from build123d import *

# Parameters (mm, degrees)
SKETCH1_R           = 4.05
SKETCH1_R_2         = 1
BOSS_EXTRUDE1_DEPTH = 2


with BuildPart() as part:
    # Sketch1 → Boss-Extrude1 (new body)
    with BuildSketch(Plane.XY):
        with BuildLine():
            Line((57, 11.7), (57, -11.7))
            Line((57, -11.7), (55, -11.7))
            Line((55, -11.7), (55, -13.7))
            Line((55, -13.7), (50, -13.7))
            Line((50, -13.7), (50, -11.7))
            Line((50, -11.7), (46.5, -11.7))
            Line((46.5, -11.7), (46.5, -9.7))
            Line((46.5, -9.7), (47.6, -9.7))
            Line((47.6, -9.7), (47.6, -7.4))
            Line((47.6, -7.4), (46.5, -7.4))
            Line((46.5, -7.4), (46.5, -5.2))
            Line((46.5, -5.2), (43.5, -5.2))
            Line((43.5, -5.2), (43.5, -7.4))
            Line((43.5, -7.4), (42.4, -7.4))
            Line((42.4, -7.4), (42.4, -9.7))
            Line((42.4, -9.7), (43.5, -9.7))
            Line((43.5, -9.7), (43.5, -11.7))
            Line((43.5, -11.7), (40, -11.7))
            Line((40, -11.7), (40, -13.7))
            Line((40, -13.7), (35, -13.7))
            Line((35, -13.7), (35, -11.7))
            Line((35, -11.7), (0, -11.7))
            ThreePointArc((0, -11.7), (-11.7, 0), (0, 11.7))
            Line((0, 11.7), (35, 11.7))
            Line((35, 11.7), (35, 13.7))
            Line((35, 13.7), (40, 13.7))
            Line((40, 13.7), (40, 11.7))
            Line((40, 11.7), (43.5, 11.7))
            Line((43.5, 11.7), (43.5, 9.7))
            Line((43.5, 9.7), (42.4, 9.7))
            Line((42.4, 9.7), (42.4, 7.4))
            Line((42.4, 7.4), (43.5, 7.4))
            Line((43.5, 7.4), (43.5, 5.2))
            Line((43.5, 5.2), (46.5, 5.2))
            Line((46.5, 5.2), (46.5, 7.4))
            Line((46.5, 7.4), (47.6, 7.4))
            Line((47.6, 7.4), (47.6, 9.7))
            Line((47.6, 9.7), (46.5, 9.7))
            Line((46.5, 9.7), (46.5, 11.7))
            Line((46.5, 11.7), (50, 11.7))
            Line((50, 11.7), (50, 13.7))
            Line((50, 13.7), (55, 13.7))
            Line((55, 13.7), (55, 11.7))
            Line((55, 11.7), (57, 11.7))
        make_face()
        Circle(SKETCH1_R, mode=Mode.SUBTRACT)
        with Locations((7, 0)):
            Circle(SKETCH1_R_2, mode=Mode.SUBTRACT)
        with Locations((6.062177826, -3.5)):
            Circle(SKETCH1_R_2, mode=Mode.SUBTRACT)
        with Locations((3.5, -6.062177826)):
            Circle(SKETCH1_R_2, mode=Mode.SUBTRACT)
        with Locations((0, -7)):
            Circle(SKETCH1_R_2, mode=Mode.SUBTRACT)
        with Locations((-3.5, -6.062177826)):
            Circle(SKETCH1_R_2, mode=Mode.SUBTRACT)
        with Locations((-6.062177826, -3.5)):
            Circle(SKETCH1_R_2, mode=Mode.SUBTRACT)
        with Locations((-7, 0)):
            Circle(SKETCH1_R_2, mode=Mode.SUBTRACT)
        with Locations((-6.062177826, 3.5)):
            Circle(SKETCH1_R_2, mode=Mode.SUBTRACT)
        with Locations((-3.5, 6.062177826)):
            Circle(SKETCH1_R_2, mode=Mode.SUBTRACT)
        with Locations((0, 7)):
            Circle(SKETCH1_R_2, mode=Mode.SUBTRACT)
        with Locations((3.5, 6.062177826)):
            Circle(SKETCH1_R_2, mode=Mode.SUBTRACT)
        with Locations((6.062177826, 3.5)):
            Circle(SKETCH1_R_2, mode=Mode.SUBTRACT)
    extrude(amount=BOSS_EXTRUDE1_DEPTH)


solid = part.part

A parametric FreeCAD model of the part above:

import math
import FreeCAD as App
import Part
import Sketcher

V = App.Vector
Q = App.Units.Quantity

doc = App.newDocument("Part")
body = doc.addObject("PartDesign::Body", "Body")

sketch1 = body.newObject("Sketcher::SketchObject", "Sketch")
sketch1.AttachmentSupport = (doc.getObject("XY_Plane"), [""])
sketch1.MapMode = "FlatFace"
sketch1.addGeometry(Part.LineSegment(V(57, -11.7, 0), V(57, 11.7, 0)), False)
sketch1.addGeometry(Part.LineSegment(V(57, 11.7, 0), V(55, 11.7, 0)), False)
sketch1.addGeometry(Part.LineSegment(V(55, 11.7, 0), V(55, 13.7, 0)), False)
sketch1.addGeometry(Part.LineSegment(V(55, 13.7, 0), V(50, 13.7, 0)), False)
sketch1.addGeometry(Part.LineSegment(V(50, 13.7, 0), V(50, 11.7, 0)), False)
sketch1.addGeometry(Part.LineSegment(V(50, 11.7, 0), V(46.5, 11.7, 0)), False)
sketch1.addGeometry(Part.LineSegment(V(46.5, 11.7, 0), V(46.5, 9.7, 0)), False)
sketch1.addGeometry(Part.LineSegment(V(46.5, 9.7, 0), V(47.6, 9.7, 0)), False)
sketch1.addGeometry(Part.LineSegment(V(47.6, 9.7, 0), V(47.6, 7.4, 0)), False)
sketch1.addGeometry(Part.LineSegment(V(47.6, 7.4, 0), V(46.5, 7.4, 0)), False)
sketch1.addGeometry(Part.LineSegment(V(46.5, 7.4, 0), V(46.5, 5.2, 0)), False)
sketch1.addGeometry(Part.LineSegment(V(46.5, 5.2, 0), V(43.5, 5.2, 0)), False)
sketch1.addGeometry(Part.LineSegment(V(43.5, 5.2, 0), V(43.5, 7.4, 0)), False)
sketch1.addGeometry(Part.LineSegment(V(43.5, 7.4, 0), V(42.4, 7.4, 0)), False)
sketch1.addGeometry(Part.LineSegment(V(42.4, 7.4, 0), V(42.4, 9.7, 0)), False)
sketch1.addGeometry(Part.LineSegment(V(42.4, 9.7, 0), V(43.5, 9.7, 0)), False)
sketch1.addGeometry(Part.LineSegment(V(43.5, 9.7, 0), V(43.5, 11.7, 0)), False)
sketch1.addGeometry(Part.LineSegment(V(43.5, 11.7, 0), V(40, 11.7, 0)), False)
sketch1.addGeometry(Part.LineSegment(V(40, 11.7, 0), V(40, 13.7, 0)), False)
sketch1.addGeometry(Part.LineSegment(V(40, 13.7, 0), V(35, 13.7, 0)), False)
sketch1.addGeometry(Part.LineSegment(V(35, 13.7, 0), V(35, 11.7, 0)), False)
sketch1.addGeometry(Part.LineSegment(V(35, 11.7, 0), V(0, 11.7, 0)), False)
sketch1.addGeometry(Part.ArcOfCircle(Part.Circle(V(0, 0, 0), V(0, 0, 1), 11.7), math.radians(90), math.radians(270)), False)
sketch1.addGeometry(Part.LineSegment(V(0, -11.7, 0), V(35, -11.7, 0)), False)
sketch1.addGeometry(Part.LineSegment(V(35, -11.7, 0), V(35, -13.7, 0)), False)
sketch1.addGeometry(Part.LineSegment(V(35, -13.7, 0), V(40, -13.7, 0)), False)
sketch1.addGeometry(Part.LineSegment(V(40, -13.7, 0), V(40, -11.7, 0)), False)
sketch1.addGeometry(Part.LineSegment(V(40, -11.7, 0), V(43.5, -11.7, 0)), False)
sketch1.addGeometry(Part.LineSegment(V(43.5, -11.7, 0), V(43.5, -9.7, 0)), False)
sketch1.addGeometry(Part.LineSegment(V(43.5, -9.7, 0), V(42.4, -9.7, 0)), False)
sketch1.addGeometry(Part.LineSegment(V(42.4, -9.7, 0), V(42.4, -7.4, 0)), False)
sketch1.addGeometry(Part.LineSegment(V(42.4, -7.4, 0), V(43.5, -7.4, 0)), False)
sketch1.addGeometry(Part.LineSegment(V(43.5, -7.4, 0), V(43.5, -5.2, 0)), False)
sketch1.addGeometry(Part.LineSegment(V(43.5, -5.2, 0), V(46.5, -5.2, 0)), False)
sketch1.addGeometry(Part.LineSegment(V(46.5, -5.2, 0), V(46.5, -7.4, 0)), False)
sketch1.addGeometry(Part.LineSegment(V(46.5, -7.4, 0), V(47.6, -7.4, 0)), False)
sketch1.addGeometry(Part.LineSegment(V(47.6, -7.4, 0), V(47.6, -9.7, 0)), False)
sketch1.addGeometry(Part.LineSegment(V(47.6, -9.7, 0), V(46.5, -9.7, 0)), False)
sketch1.addGeometry(Part.LineSegment(V(46.5, -9.7, 0), V(46.5, -11.7, 0)), False)
sketch1.addGeometry(Part.LineSegment(V(46.5, -11.7, 0), V(50, -11.7, 0)), False)
sketch1.addGeometry(Part.LineSegment(V(50, -11.7, 0), V(50, -13.7, 0)), False)
sketch1.addGeometry(Part.LineSegment(V(50, -13.7, 0), V(55, -13.7, 0)), False)
sketch1.addGeometry(Part.LineSegment(V(55, -13.7, 0), V(55, -11.7, 0)), False)
sketch1.addGeometry(Part.LineSegment(V(55, -11.7, 0), V(57, -11.7, 0)), False)
sketch1.addGeometry(Part.Circle(V(3.5, -6.062178, 0), V(0, 0, 1), 1), False)
sketch1.addGeometry(Part.Circle(V(6.062178, -3.5, 0), V(0, 0, 1), 1), False)
sketch1.addGeometry(Part.Circle(V(0, -7, 0), V(0, 0, 1), 1), False)
sketch1.addGeometry(Part.Circle(V(-3.5, -6.062178, 0), V(0, 0, 1), 1), False)
sketch1.addGeometry(Part.Circle(V(-6.062178, -3.5, 0), V(0, 0, 1), 1), False)
sketch1.addGeometry(Part.Circle(V(7, 0, 0), V(0, 0, 1), 1), False)
sketch1.addGeometry(Part.Circle(V(6.062178, 3.5, 0), V(0, 0, 1), 1), False)
sketch1.addGeometry(Part.Circle(V(3.5, 6.062178, 0), V(0, 0, 1), 1), False)
sketch1.addGeometry(Part.Circle(V(0, 0, 0), V(0, 0, 1), 4.05), False)
sketch1.addGeometry(Part.Circle(V(-7, 0, 0), V(0, 0, 1), 1), False)
sketch1.addGeometry(Part.Circle(V(-6.062178, 3.5, 0), V(0, 0, 1), 1), False)
sketch1.addGeometry(Part.Circle(V(0, 7, 0), V(0, 0, 1), 1), False)
sketch1.addGeometry(Part.Circle(V(-3.5, 6.062178, 0), V(0, 0, 1), 1), False)
sketch1.addConstraint(Sketcher.Constraint("Coincident", 0, 2, 1, 1))
sketch1.addConstraint(Sketcher.Constraint("Coincident", 1, 2, 2, 1))
sketch1.addConstraint(Sketcher.Constraint("Coincident", 2, 2, 3, 1))
sketch1.addConstraint(Sketcher.Constraint("Coincident", 3, 2, 4, 1))
sketch1.addConstraint(Sketcher.Constraint("Coincident", 4, 2, 5, 1))
sketch1.addConstraint(Sketcher.Constraint("Coincident", 5, 2, 6, 1))
sketch1.addConstraint(Sketcher.Constraint("Coincident", 6, 2, 7, 1))
sketch1.addConstraint(Sketcher.Constraint("Coincident", 7, 2, 8, 1))
sketch1.addConstraint(Sketcher.Constraint("Coincident", 8, 2, 9, 1))
sketch1.addConstraint(Sketcher.Constraint("Coincident", 9, 2, 10, 1))
sketch1.addConstraint(Sketcher.Constraint("Coincident", 10, 2, 11, 1))
sketch1.addConstraint(Sketcher.Constraint("Coincident", 11, 2, 12, 1))
sketch1.addConstraint(Sketcher.Constraint("Coincident", 12, 2, 13, 1))
sketch1.addConstraint(Sketcher.Constraint("Coincident", 13, 2, 14, 1))
sketch1.addConstraint(Sketcher.Constraint("Coincident", 14, 2, 15, 1))
sketch1.addConstraint(Sketcher.Constraint("Coincident", 15, 2, 16, 1))
sketch1.addConstraint(Sketcher.Constraint("Coincident", 16, 2, 17, 1))
sketch1.addConstraint(Sketcher.Constraint("Coincident", 17, 2, 18, 1))
sketch1.addConstraint(Sketcher.Constraint("Coincident", 18, 2, 19, 1))
sketch1.addConstraint(Sketcher.Constraint("Coincident", 19, 2, 20, 1))
sketch1.addConstraint(Sketcher.Constraint("Coincident", 20, 2, 21, 1))
sketch1.addConstraint(Sketcher.Constraint("Tangent", 21, 2, 22, 1))
sketch1.addConstraint(Sketcher.Constraint("Tangent", 22, 2, 23, 1))
sketch1.addConstraint(Sketcher.Constraint("Coincident", 23, 2, 24, 1))
sketch1.addConstraint(Sketcher.Constraint("Coincident", 24, 2, 25, 1))
sketch1.addConstraint(Sketcher.Constraint("Coincident", 25, 2, 26, 1))
sketch1.addConstraint(Sketcher.Constraint("Coincident", 26, 2, 27, 1))
sketch1.addConstraint(Sketcher.Constraint("Coincident", 27, 2, 28, 1))
sketch1.addConstraint(Sketcher.Constraint("Coincident", 28, 2, 29, 1))
sketch1.addConstraint(Sketcher.Constraint("Coincident", 29, 2, 30, 1))
sketch1.addConstraint(Sketcher.Constraint("Coincident", 30, 2, 31, 1))
sketch1.addConstraint(Sketcher.Constraint("Coincident", 31, 2, 32, 1))
sketch1.addConstraint(Sketcher.Constraint("Coincident", 32, 2, 33, 1))
sketch1.addConstraint(Sketcher.Constraint("Coincident", 33, 2, 34, 1))
sketch1.addConstraint(Sketcher.Constraint("Coincident", 34, 2, 35, 1))
sketch1.addConstraint(Sketcher.Constraint("Coincident", 35, 2, 36, 1))
sketch1.addConstraint(Sketcher.Constraint("Coincident", 36, 2, 37, 1))
sketch1.addConstraint(Sketcher.Constraint("Coincident", 37, 2, 38, 1))
sketch1.addConstraint(Sketcher.Constraint("Coincident", 38, 2, 39, 1))
sketch1.addConstraint(Sketcher.Constraint("Coincident", 39, 2, 40, 1))
sketch1.addConstraint(Sketcher.Constraint("Coincident", 40, 2, 41, 1))
sketch1.addConstraint(Sketcher.Constraint("Coincident", 41, 2, 42, 1))
sketch1.addConstraint(Sketcher.Constraint("Coincident", 42, 2, 43, 1))
sketch1.addConstraint(Sketcher.Constraint("Coincident", 43, 2, 0, 1))
sketch1.addConstraint(Sketcher.Constraint("Vertical", 0))
sketch1.addConstraint(Sketcher.Constraint("Horizontal", 1))
sketch1.addConstraint(Sketcher.Constraint("Vertical", 2))
sketch1.addConstraint(Sketcher.Constraint("Horizontal", 3))
sketch1.addConstraint(Sketcher.Constraint("Vertical", 4))
sketch1.addConstraint(Sketcher.Constraint("Horizontal", 5))
sketch1.addConstraint(Sketcher.Constraint("Vertical", 6))
sketch1.addConstraint(Sketcher.Constraint("Horizontal", 7))
sketch1.addConstraint(Sketcher.Constraint("Vertical", 8))
sketch1.addConstraint(Sketcher.Constraint("Horizontal", 9))
sketch1.addConstraint(Sketcher.Constraint("Vertical", 10))
sketch1.addConstraint(Sketcher.Constraint("Horizontal", 11))
sketch1.addConstraint(Sketcher.Constraint("Vertical", 12))
sketch1.addConstraint(Sketcher.Constraint("Horizontal", 13))
sketch1.addConstraint(Sketcher.Constraint("Vertical", 14))
sketch1.addConstraint(Sketcher.Constraint("Horizontal", 15))
sketch1.addConstraint(Sketcher.Constraint("Vertical", 16))
sketch1.addConstraint(Sketcher.Constraint("Horizontal", 17))
sketch1.addConstraint(Sketcher.Constraint("Vertical", 18))
sketch1.addConstraint(Sketcher.Constraint("Horizontal", 19))
sketch1.addConstraint(Sketcher.Constraint("Vertical", 20))
sketch1.addConstraint(Sketcher.Constraint("Horizontal", 21))
sketch1.addConstraint(Sketcher.Constraint("Horizontal", 23))
sketch1.addConstraint(Sketcher.Constraint("Vertical", 24))
sketch1.addConstraint(Sketcher.Constraint("Horizontal", 25))
sketch1.addConstraint(Sketcher.Constraint("Vertical", 26))
sketch1.addConstraint(Sketcher.Constraint("Horizontal", 27))
sketch1.addConstraint(Sketcher.Constraint("Vertical", 28))
sketch1.addConstraint(Sketcher.Constraint("Horizontal", 29))
sketch1.addConstraint(Sketcher.Constraint("Vertical", 30))
sketch1.addConstraint(Sketcher.Constraint("Horizontal", 31))
sketch1.addConstraint(Sketcher.Constraint("Vertical", 32))
sketch1.addConstraint(Sketcher.Constraint("Horizontal", 33))
sketch1.addConstraint(Sketcher.Constraint("Vertical", 34))
sketch1.addConstraint(Sketcher.Constraint("Horizontal", 35))
sketch1.addConstraint(Sketcher.Constraint("Vertical", 36))
sketch1.addConstraint(Sketcher.Constraint("Horizontal", 37))
sketch1.addConstraint(Sketcher.Constraint("Vertical", 38))
sketch1.addConstraint(Sketcher.Constraint("Horizontal", 39))
sketch1.addConstraint(Sketcher.Constraint("Vertical", 40))
sketch1.addConstraint(Sketcher.Constraint("Horizontal", 41))
sketch1.addConstraint(Sketcher.Constraint("Vertical", 42))
sketch1.addConstraint(Sketcher.Constraint("Horizontal", 43))
sketch1.addConstraint(Sketcher.Constraint("Coincident", 22, 3, -1, 1))
sketch1.addConstraint(Sketcher.Constraint("Coincident", 52, 3, -1, 1))
sketch1.addConstraint(Sketcher.Constraint("Equal", 44, 45))
sketch1.addConstraint(Sketcher.Constraint("Equal", 45, 46))
sketch1.addConstraint(Sketcher.Constraint("Equal", 46, 47))
sketch1.addConstraint(Sketcher.Constraint("Equal", 47, 48))
sketch1.addConstraint(Sketcher.Constraint("Equal", 48, 49))
sketch1.addConstraint(Sketcher.Constraint("Equal", 49, 50))
sketch1.addConstraint(Sketcher.Constraint("Equal", 50, 51))
sketch1.addConstraint(Sketcher.Constraint("Equal", 51, 53))
sketch1.addConstraint(Sketcher.Constraint("Equal", 53, 54))
sketch1.addConstraint(Sketcher.Constraint("Equal", 54, 55))
sketch1.addConstraint(Sketcher.Constraint("Equal", 55, 56))
sketch1.addConstraint(Sketcher.Constraint("Symmetric", 48, 3, 50, 3, -1, 1))
sketch1.addConstraint(Sketcher.Constraint("Symmetric", 47, 3, 51, 3, -1, 1))
sketch1.addConstraint(Sketcher.Constraint("Symmetric", 49, 3, 53, 3, -1, 1))
sketch1.addConstraint(Sketcher.Constraint("Symmetric", 45, 3, 54, 3, -1, 1))
sketch1.addConstraint(Sketcher.Constraint("Symmetric", 46, 3, 55, 3, -1, 1))
sketch1.addConstraint(Sketcher.Constraint("Symmetric", 44, 3, 56, 3, -1, 1))
sketch1.addConstraint(Sketcher.Constraint("Symmetric", 44, 3, 47, 3, -2))
sketch1.addConstraint(Sketcher.Constraint("Symmetric", 45, 3, 48, 3, -2))
sketch1.addConstraint(Sketcher.Constraint("Symmetric", 19, 2, 24, 2, -1))
sketch1.addConstraint(Sketcher.Constraint("Symmetric", 17, 2, 26, 2, -1))
sketch1.addConstraint(Sketcher.Constraint("Symmetric", 15, 2, 28, 2, -1))
sketch1.addConstraint(Sketcher.Constraint("Symmetric", 13, 2, 30, 2, -1))
sketch1.addConstraint(Sketcher.Constraint("Symmetric", 11, 2, 32, 2, -1))
sketch1.addConstraint(Sketcher.Constraint("Symmetric", 9, 2, 34, 2, -1))
sketch1.addConstraint(Sketcher.Constraint("Symmetric", 7, 2, 36, 2, -1))
sketch1.addConstraint(Sketcher.Constraint("Symmetric", 5, 2, 38, 2, -1))
sketch1.addConstraint(Sketcher.Constraint("Symmetric", 3, 2, 40, 2, -1))
sketch1.addConstraint(Sketcher.Constraint("Symmetric", 1, 2, 42, 2, -1))
sketch1.addConstraint(Sketcher.Constraint("PointOnObject", 46, 3, -2))
sketch1.addConstraint(Sketcher.Constraint("PointOnObject", 49, 3, -1))
sketch1.addConstraint(Sketcher.Constraint("Horizontal", 1, 2, 4, 2))
sketch1.addConstraint(Sketcher.Constraint("Horizontal", 9, 2, 12, 2))
sketch1.addConstraint(Sketcher.Constraint("Horizontal", 7, 2, 14, 2))
sketch1.addConstraint(Sketcher.Constraint("Horizontal", 5, 2, 16, 2))
sketch1.addConstraint(Sketcher.Constraint("Horizontal", 3, 2, 18, 2))
sketch1.addConstraint(Sketcher.Constraint("Horizontal", 17, 2, 20, 2))
sketch1.addConstraint(Sketcher.Constraint("Vertical", 6, 2, 9, 2))
sketch1.addConstraint(Sketcher.Constraint("Vertical", 12, 2, 15, 2))
sketch1.addConstraint(Sketcher.Constraint("Equal", 9, 13))
sketch1.addConstraint(Sketcher.Constraint("Equal", 5, 17))
sketch1.addConstraint(Sketcher.Constraint("Equal", 3, 19))
sketch1.addConstraint(Sketcher.Constraint("Equal", 43, 2))
sketch1.addConstraint(Sketcher.Constraint("Equal", 4, 6))
sketch1.addConstraint(Sketcher.Constraint("Diameter", 44, Q("2 mm")))
sketch1.addConstraint(Sketcher.Constraint("Diameter", 52, Q("8.1 mm")))
sketch1.addConstraint(Sketcher.Constraint("Radius", 22, Q("11.7 mm")))
sketch1.addConstraint(Sketcher.Constraint("DistanceX", 1, 2, 1, 1, Q("2 mm")))
sketch1.addConstraint(Sketcher.Constraint("DistanceX", 3, 2, 3, 1, Q("5 mm")))
sketch1.addConstraint(Sketcher.Constraint("DistanceX", 11, 2, 11, 1, Q("3 mm")))
sketch1.addConstraint(Sketcher.Constraint("DistanceX", 21, 2, 21, 1, Q("35 mm")))
sketch1.addConstraint(Sketcher.Constraint("DistanceX", 5, 2, 5, 1, Q("3.5 mm")))
sketch1.addConstraint(Sketcher.Constraint("DistanceX", 7, 1, 7, 2, Q("1.1 mm")))
sketch1.addConstraint(Sketcher.Constraint("DistanceY", 8, 2, 8, 1, Q("2.3 mm")))
sketch1.addConstraint(Sketcher.Constraint("DistanceY", 10, 2, 10, 1, Q("2.2 mm")))
sketch1.addConstraint(Sketcher.Constraint("DistanceY", 46, 3, -1, 1, Q("7 mm")))
sketch1.addConstraint(Sketcher.Constraint("DistanceX", -1, 1, 49, 3, Q("7 mm")))
sketch1.addConstraint(Sketcher.Constraint("DistanceX", 47, 3, 44, 3, Q("7 mm")))
sketch1.addConstraint(Sketcher.Constraint("DistanceY", 45, 3, 50, 3, Q("7 mm")))
sketch1.addConstraint(Sketcher.Constraint("DistanceY", 44, 3, -1, 1, Q("6.062178 mm")))
sketch1.addConstraint(Sketcher.Constraint("DistanceX", -1, 1, 45, 3, Q("6.062178 mm")))
pad1 = body.newObject("PartDesign::Pad", "Pad")
pad1.Profile = sketch1
pad1.Length = 2

doc.recompute()
